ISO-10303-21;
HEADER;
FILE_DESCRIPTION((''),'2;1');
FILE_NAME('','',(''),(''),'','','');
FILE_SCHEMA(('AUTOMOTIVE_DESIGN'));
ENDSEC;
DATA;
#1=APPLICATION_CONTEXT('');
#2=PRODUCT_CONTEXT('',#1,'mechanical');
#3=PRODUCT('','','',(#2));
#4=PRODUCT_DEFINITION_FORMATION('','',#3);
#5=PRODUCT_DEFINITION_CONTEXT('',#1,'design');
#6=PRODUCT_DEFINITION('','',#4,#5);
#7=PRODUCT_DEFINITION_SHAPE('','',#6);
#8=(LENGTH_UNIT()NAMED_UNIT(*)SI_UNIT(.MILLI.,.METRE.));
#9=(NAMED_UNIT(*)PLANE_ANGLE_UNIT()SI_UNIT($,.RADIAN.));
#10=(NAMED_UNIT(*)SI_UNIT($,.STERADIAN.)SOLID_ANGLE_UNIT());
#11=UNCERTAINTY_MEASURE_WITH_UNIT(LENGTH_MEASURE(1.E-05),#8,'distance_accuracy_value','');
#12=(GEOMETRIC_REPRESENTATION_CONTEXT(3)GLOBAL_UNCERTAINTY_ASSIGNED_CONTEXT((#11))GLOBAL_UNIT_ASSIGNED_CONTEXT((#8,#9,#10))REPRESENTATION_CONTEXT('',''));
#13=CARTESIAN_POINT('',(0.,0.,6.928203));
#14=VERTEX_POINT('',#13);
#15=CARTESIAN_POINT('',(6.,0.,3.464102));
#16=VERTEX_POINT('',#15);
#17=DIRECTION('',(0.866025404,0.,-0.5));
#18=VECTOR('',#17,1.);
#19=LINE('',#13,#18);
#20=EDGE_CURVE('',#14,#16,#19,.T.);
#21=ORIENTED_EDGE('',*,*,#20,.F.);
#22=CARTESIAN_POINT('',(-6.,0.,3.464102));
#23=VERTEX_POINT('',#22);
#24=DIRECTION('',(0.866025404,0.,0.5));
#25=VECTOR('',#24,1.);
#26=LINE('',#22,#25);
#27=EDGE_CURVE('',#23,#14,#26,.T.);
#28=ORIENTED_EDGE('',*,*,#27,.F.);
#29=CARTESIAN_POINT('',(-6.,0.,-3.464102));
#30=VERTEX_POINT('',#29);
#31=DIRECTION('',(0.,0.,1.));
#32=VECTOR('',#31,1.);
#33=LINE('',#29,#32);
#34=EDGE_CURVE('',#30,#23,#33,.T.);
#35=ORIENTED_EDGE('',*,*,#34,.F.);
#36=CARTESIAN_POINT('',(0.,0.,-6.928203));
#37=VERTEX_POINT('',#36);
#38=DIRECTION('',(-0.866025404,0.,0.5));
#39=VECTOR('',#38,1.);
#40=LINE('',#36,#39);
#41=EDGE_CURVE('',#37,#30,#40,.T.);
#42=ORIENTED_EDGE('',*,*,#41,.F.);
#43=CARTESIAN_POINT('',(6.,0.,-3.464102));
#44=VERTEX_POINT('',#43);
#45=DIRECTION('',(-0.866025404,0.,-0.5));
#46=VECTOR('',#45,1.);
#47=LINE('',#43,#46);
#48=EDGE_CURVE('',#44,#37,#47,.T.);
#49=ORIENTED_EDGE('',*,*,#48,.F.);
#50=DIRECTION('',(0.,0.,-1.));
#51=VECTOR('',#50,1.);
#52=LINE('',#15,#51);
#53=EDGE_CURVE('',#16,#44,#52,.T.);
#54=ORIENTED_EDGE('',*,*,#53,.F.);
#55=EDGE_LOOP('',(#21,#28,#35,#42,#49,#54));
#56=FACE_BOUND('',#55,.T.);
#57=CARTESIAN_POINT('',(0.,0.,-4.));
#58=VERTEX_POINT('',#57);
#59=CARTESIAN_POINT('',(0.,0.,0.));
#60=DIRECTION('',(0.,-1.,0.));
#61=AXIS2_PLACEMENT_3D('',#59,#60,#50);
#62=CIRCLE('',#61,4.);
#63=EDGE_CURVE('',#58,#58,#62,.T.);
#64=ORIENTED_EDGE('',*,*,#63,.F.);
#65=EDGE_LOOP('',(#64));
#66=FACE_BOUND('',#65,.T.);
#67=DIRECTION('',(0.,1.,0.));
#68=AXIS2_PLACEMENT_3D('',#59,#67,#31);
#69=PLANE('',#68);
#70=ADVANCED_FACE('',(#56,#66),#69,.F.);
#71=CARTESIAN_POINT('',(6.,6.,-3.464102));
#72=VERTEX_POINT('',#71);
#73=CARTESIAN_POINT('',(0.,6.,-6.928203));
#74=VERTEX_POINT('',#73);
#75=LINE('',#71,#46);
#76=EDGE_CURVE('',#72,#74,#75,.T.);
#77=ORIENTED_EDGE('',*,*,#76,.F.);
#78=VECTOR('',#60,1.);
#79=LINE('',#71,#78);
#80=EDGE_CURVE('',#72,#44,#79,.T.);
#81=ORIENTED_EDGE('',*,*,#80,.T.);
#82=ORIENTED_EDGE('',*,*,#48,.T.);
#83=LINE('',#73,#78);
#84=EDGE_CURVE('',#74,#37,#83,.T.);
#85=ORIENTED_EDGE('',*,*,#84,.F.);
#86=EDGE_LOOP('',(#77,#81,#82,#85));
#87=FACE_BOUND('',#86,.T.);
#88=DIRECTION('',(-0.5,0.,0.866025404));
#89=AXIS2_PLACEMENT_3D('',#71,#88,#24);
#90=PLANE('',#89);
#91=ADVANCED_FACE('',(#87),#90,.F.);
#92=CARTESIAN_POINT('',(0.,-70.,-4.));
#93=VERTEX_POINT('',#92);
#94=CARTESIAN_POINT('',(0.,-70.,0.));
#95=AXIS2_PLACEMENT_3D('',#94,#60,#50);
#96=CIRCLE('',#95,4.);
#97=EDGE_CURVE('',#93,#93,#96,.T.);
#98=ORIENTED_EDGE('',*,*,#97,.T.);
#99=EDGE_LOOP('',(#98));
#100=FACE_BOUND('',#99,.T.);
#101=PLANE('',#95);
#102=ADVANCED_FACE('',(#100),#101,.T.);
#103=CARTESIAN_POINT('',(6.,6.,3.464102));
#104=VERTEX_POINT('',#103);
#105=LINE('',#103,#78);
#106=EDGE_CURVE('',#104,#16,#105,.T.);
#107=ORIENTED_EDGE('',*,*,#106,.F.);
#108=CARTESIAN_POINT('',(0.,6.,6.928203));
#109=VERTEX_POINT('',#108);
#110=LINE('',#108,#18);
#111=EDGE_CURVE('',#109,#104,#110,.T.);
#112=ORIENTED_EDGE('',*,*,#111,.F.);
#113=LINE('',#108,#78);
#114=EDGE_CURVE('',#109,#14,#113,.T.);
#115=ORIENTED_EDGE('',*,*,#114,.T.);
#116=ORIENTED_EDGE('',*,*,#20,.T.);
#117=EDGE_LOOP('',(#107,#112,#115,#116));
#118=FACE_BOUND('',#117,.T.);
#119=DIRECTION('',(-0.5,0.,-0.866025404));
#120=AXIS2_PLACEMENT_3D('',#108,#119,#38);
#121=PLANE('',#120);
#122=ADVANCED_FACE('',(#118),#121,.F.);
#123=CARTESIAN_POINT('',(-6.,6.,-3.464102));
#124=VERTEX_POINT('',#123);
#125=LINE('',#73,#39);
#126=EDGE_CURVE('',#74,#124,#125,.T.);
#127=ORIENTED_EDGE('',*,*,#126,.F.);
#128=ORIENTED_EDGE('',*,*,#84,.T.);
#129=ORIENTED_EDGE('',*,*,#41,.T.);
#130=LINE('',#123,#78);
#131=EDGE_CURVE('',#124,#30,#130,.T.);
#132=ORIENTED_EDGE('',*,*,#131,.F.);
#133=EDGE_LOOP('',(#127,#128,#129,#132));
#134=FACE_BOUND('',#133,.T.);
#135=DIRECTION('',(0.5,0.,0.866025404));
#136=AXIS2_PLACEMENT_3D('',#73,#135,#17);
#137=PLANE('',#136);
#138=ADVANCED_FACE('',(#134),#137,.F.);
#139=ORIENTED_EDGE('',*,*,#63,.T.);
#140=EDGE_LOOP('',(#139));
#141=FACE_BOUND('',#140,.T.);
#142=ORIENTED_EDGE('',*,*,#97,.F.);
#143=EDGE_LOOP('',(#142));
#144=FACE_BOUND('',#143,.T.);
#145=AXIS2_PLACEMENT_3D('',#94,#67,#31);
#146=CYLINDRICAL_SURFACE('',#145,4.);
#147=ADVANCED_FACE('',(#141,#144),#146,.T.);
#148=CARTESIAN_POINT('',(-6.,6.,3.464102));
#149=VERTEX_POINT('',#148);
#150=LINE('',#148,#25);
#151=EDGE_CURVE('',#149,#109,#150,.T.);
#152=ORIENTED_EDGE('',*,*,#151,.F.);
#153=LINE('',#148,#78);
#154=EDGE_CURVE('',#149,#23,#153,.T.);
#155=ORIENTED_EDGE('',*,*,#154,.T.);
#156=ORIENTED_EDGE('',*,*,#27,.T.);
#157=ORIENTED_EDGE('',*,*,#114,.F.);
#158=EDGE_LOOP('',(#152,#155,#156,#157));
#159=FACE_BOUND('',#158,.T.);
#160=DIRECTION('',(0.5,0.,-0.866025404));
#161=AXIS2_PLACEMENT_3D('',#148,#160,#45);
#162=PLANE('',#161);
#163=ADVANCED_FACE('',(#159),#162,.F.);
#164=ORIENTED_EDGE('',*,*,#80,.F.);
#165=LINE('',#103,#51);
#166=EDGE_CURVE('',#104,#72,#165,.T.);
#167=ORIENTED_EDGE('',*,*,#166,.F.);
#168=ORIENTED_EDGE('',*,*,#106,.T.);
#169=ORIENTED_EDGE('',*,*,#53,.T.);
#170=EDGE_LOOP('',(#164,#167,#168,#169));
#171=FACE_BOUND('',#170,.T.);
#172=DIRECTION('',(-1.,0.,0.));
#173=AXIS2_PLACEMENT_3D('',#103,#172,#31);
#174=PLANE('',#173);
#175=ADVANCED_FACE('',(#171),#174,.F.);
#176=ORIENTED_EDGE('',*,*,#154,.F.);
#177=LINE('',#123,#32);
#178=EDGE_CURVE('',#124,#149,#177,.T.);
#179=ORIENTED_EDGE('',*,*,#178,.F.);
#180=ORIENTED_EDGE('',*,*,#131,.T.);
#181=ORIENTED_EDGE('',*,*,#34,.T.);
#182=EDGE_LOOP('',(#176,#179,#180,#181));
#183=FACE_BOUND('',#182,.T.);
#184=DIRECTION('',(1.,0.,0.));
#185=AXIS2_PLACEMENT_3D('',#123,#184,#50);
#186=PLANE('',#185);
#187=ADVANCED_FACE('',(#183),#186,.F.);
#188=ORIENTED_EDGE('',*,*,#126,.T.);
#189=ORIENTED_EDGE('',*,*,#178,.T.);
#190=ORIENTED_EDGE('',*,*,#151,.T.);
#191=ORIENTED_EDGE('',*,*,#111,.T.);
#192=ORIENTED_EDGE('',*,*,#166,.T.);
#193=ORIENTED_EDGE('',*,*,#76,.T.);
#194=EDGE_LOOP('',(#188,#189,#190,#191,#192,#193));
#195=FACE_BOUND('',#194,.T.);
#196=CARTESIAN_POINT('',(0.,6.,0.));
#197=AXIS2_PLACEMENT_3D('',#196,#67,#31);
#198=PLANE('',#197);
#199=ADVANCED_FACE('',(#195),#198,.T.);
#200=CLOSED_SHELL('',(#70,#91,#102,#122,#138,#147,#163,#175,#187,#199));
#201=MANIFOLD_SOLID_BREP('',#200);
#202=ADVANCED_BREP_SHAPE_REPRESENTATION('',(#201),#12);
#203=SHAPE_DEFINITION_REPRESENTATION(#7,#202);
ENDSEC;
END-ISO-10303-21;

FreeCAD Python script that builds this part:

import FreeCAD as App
import Part
import Sketcher
Q = App.Units.Quantity

doc = App.newDocument("Part")
body = doc.addObject("PartDesign::Body", "Body")

# Sketch on XZ plane
sketch1 = body.newObject("Sketcher::SketchObject", "Sketch")
sketch1.AttachmentSupport = (doc.getObject("XZ_Plane"), [""])
sketch1.MapMode = "FlatFace"
sketch1.addGeometry(Part.LineSegment(App.Vector(0, 7, 0), App.Vector(6, 3, 0)), False)
sketch1.addGeometry(Part.LineSegment(App.Vector(6, 3, 0), App.Vector(6, -3, 0)), False)
sketch1.addGeometry(Part.LineSegment(App.Vector(6, -3, 0), App.Vector(0, -7, 0)), False)
sketch1.addGeometry(Part.LineSegment(App.Vector(0, -7, 0), App.Vector(-6, -3, 0)), False)
sketch1.addGeometry(Part.LineSegment(App.Vector(-6, -3, 0), App.Vector(-6, 3, 0)), False)
sketch1.addGeometry(Part.LineSegment(App.Vector(-6, 3, 0), App.Vector(0, 7, 0)), False)
sketch1.addConstraint(Sketcher.Constraint("Coincident", 0, 2, 1, 1))
sketch1.addConstraint(Sketcher.Constraint("Coincident", 1, 2, 2, 1))
sketch1.addConstraint(Sketcher.Constraint("Coincident", 2, 2, 3, 1))
sketch1.addConstraint(Sketcher.Constraint("Coincident", 3, 2, 4, 1))
sketch1.addConstraint(Sketcher.Constraint("Coincident", 4, 2, 5, 1))
sketch1.addConstraint(Sketcher.Constraint("Coincident", 5, 2, 0, 1))
sketch1.addConstraint(Sketcher.Constraint("Vertical", 1))
sketch1.addConstraint(Sketcher.Constraint("Vertical", 4))
sketch1.addConstraint(Sketcher.Constraint("Symmetric", 0, 2, 3, 2, -1, 1))
sketch1.addConstraint(Sketcher.Constraint("Symmetric", 2, 2, 5, 2, -1, 1))
sketch1.addConstraint(Sketcher.Constraint("PointOnObject", 2, 2, -2))
sketch1.addConstraint(Sketcher.Constraint("Parallel", 2, 5))
sketch1.addConstraint(Sketcher.Constraint("Horizontal", 1, 2, 3, 2))
sketch1.addConstraint(Sketcher.Constraint("Angle", 0, Q("-30 deg")))
sketch1.addConstraint(Sketcher.Constraint("DistanceX", -1, 1, 0, 2, 6.0))
sketch1.addConstraint(Sketcher.Constraint("DistanceY", -1, 1, 0, 2, 3.464102))
pad1 = body.newObject("PartDesign::Pad", "Pad")
pad1.Profile = sketch1
pad1.Length = 6
pad1.Reversed = True

# Sketch on XZ plane
sketch2 = body.newObject("Sketcher::SketchObject", "Sketch001")
sketch2.AttachmentSupport = (doc.getObject("XZ_Plane"), [""])
sketch2.MapMode = "FlatFace"
sketch2.addGeometry(Part.Circle(App.Vector(0, 0, 0), App.Vector(0, 0, 1), 4), False)
sketch2.addConstraint(Sketcher.Constraint("Coincident", 0, 3, -1, 1))
sketch2.addConstraint(Sketcher.Constraint("Diameter", 0, 8.0))
pad2 = body.newObject("PartDesign::Pad", "Pad001")
pad2.Profile = sketch2
pad2.Length = 70

doc.recompute()
